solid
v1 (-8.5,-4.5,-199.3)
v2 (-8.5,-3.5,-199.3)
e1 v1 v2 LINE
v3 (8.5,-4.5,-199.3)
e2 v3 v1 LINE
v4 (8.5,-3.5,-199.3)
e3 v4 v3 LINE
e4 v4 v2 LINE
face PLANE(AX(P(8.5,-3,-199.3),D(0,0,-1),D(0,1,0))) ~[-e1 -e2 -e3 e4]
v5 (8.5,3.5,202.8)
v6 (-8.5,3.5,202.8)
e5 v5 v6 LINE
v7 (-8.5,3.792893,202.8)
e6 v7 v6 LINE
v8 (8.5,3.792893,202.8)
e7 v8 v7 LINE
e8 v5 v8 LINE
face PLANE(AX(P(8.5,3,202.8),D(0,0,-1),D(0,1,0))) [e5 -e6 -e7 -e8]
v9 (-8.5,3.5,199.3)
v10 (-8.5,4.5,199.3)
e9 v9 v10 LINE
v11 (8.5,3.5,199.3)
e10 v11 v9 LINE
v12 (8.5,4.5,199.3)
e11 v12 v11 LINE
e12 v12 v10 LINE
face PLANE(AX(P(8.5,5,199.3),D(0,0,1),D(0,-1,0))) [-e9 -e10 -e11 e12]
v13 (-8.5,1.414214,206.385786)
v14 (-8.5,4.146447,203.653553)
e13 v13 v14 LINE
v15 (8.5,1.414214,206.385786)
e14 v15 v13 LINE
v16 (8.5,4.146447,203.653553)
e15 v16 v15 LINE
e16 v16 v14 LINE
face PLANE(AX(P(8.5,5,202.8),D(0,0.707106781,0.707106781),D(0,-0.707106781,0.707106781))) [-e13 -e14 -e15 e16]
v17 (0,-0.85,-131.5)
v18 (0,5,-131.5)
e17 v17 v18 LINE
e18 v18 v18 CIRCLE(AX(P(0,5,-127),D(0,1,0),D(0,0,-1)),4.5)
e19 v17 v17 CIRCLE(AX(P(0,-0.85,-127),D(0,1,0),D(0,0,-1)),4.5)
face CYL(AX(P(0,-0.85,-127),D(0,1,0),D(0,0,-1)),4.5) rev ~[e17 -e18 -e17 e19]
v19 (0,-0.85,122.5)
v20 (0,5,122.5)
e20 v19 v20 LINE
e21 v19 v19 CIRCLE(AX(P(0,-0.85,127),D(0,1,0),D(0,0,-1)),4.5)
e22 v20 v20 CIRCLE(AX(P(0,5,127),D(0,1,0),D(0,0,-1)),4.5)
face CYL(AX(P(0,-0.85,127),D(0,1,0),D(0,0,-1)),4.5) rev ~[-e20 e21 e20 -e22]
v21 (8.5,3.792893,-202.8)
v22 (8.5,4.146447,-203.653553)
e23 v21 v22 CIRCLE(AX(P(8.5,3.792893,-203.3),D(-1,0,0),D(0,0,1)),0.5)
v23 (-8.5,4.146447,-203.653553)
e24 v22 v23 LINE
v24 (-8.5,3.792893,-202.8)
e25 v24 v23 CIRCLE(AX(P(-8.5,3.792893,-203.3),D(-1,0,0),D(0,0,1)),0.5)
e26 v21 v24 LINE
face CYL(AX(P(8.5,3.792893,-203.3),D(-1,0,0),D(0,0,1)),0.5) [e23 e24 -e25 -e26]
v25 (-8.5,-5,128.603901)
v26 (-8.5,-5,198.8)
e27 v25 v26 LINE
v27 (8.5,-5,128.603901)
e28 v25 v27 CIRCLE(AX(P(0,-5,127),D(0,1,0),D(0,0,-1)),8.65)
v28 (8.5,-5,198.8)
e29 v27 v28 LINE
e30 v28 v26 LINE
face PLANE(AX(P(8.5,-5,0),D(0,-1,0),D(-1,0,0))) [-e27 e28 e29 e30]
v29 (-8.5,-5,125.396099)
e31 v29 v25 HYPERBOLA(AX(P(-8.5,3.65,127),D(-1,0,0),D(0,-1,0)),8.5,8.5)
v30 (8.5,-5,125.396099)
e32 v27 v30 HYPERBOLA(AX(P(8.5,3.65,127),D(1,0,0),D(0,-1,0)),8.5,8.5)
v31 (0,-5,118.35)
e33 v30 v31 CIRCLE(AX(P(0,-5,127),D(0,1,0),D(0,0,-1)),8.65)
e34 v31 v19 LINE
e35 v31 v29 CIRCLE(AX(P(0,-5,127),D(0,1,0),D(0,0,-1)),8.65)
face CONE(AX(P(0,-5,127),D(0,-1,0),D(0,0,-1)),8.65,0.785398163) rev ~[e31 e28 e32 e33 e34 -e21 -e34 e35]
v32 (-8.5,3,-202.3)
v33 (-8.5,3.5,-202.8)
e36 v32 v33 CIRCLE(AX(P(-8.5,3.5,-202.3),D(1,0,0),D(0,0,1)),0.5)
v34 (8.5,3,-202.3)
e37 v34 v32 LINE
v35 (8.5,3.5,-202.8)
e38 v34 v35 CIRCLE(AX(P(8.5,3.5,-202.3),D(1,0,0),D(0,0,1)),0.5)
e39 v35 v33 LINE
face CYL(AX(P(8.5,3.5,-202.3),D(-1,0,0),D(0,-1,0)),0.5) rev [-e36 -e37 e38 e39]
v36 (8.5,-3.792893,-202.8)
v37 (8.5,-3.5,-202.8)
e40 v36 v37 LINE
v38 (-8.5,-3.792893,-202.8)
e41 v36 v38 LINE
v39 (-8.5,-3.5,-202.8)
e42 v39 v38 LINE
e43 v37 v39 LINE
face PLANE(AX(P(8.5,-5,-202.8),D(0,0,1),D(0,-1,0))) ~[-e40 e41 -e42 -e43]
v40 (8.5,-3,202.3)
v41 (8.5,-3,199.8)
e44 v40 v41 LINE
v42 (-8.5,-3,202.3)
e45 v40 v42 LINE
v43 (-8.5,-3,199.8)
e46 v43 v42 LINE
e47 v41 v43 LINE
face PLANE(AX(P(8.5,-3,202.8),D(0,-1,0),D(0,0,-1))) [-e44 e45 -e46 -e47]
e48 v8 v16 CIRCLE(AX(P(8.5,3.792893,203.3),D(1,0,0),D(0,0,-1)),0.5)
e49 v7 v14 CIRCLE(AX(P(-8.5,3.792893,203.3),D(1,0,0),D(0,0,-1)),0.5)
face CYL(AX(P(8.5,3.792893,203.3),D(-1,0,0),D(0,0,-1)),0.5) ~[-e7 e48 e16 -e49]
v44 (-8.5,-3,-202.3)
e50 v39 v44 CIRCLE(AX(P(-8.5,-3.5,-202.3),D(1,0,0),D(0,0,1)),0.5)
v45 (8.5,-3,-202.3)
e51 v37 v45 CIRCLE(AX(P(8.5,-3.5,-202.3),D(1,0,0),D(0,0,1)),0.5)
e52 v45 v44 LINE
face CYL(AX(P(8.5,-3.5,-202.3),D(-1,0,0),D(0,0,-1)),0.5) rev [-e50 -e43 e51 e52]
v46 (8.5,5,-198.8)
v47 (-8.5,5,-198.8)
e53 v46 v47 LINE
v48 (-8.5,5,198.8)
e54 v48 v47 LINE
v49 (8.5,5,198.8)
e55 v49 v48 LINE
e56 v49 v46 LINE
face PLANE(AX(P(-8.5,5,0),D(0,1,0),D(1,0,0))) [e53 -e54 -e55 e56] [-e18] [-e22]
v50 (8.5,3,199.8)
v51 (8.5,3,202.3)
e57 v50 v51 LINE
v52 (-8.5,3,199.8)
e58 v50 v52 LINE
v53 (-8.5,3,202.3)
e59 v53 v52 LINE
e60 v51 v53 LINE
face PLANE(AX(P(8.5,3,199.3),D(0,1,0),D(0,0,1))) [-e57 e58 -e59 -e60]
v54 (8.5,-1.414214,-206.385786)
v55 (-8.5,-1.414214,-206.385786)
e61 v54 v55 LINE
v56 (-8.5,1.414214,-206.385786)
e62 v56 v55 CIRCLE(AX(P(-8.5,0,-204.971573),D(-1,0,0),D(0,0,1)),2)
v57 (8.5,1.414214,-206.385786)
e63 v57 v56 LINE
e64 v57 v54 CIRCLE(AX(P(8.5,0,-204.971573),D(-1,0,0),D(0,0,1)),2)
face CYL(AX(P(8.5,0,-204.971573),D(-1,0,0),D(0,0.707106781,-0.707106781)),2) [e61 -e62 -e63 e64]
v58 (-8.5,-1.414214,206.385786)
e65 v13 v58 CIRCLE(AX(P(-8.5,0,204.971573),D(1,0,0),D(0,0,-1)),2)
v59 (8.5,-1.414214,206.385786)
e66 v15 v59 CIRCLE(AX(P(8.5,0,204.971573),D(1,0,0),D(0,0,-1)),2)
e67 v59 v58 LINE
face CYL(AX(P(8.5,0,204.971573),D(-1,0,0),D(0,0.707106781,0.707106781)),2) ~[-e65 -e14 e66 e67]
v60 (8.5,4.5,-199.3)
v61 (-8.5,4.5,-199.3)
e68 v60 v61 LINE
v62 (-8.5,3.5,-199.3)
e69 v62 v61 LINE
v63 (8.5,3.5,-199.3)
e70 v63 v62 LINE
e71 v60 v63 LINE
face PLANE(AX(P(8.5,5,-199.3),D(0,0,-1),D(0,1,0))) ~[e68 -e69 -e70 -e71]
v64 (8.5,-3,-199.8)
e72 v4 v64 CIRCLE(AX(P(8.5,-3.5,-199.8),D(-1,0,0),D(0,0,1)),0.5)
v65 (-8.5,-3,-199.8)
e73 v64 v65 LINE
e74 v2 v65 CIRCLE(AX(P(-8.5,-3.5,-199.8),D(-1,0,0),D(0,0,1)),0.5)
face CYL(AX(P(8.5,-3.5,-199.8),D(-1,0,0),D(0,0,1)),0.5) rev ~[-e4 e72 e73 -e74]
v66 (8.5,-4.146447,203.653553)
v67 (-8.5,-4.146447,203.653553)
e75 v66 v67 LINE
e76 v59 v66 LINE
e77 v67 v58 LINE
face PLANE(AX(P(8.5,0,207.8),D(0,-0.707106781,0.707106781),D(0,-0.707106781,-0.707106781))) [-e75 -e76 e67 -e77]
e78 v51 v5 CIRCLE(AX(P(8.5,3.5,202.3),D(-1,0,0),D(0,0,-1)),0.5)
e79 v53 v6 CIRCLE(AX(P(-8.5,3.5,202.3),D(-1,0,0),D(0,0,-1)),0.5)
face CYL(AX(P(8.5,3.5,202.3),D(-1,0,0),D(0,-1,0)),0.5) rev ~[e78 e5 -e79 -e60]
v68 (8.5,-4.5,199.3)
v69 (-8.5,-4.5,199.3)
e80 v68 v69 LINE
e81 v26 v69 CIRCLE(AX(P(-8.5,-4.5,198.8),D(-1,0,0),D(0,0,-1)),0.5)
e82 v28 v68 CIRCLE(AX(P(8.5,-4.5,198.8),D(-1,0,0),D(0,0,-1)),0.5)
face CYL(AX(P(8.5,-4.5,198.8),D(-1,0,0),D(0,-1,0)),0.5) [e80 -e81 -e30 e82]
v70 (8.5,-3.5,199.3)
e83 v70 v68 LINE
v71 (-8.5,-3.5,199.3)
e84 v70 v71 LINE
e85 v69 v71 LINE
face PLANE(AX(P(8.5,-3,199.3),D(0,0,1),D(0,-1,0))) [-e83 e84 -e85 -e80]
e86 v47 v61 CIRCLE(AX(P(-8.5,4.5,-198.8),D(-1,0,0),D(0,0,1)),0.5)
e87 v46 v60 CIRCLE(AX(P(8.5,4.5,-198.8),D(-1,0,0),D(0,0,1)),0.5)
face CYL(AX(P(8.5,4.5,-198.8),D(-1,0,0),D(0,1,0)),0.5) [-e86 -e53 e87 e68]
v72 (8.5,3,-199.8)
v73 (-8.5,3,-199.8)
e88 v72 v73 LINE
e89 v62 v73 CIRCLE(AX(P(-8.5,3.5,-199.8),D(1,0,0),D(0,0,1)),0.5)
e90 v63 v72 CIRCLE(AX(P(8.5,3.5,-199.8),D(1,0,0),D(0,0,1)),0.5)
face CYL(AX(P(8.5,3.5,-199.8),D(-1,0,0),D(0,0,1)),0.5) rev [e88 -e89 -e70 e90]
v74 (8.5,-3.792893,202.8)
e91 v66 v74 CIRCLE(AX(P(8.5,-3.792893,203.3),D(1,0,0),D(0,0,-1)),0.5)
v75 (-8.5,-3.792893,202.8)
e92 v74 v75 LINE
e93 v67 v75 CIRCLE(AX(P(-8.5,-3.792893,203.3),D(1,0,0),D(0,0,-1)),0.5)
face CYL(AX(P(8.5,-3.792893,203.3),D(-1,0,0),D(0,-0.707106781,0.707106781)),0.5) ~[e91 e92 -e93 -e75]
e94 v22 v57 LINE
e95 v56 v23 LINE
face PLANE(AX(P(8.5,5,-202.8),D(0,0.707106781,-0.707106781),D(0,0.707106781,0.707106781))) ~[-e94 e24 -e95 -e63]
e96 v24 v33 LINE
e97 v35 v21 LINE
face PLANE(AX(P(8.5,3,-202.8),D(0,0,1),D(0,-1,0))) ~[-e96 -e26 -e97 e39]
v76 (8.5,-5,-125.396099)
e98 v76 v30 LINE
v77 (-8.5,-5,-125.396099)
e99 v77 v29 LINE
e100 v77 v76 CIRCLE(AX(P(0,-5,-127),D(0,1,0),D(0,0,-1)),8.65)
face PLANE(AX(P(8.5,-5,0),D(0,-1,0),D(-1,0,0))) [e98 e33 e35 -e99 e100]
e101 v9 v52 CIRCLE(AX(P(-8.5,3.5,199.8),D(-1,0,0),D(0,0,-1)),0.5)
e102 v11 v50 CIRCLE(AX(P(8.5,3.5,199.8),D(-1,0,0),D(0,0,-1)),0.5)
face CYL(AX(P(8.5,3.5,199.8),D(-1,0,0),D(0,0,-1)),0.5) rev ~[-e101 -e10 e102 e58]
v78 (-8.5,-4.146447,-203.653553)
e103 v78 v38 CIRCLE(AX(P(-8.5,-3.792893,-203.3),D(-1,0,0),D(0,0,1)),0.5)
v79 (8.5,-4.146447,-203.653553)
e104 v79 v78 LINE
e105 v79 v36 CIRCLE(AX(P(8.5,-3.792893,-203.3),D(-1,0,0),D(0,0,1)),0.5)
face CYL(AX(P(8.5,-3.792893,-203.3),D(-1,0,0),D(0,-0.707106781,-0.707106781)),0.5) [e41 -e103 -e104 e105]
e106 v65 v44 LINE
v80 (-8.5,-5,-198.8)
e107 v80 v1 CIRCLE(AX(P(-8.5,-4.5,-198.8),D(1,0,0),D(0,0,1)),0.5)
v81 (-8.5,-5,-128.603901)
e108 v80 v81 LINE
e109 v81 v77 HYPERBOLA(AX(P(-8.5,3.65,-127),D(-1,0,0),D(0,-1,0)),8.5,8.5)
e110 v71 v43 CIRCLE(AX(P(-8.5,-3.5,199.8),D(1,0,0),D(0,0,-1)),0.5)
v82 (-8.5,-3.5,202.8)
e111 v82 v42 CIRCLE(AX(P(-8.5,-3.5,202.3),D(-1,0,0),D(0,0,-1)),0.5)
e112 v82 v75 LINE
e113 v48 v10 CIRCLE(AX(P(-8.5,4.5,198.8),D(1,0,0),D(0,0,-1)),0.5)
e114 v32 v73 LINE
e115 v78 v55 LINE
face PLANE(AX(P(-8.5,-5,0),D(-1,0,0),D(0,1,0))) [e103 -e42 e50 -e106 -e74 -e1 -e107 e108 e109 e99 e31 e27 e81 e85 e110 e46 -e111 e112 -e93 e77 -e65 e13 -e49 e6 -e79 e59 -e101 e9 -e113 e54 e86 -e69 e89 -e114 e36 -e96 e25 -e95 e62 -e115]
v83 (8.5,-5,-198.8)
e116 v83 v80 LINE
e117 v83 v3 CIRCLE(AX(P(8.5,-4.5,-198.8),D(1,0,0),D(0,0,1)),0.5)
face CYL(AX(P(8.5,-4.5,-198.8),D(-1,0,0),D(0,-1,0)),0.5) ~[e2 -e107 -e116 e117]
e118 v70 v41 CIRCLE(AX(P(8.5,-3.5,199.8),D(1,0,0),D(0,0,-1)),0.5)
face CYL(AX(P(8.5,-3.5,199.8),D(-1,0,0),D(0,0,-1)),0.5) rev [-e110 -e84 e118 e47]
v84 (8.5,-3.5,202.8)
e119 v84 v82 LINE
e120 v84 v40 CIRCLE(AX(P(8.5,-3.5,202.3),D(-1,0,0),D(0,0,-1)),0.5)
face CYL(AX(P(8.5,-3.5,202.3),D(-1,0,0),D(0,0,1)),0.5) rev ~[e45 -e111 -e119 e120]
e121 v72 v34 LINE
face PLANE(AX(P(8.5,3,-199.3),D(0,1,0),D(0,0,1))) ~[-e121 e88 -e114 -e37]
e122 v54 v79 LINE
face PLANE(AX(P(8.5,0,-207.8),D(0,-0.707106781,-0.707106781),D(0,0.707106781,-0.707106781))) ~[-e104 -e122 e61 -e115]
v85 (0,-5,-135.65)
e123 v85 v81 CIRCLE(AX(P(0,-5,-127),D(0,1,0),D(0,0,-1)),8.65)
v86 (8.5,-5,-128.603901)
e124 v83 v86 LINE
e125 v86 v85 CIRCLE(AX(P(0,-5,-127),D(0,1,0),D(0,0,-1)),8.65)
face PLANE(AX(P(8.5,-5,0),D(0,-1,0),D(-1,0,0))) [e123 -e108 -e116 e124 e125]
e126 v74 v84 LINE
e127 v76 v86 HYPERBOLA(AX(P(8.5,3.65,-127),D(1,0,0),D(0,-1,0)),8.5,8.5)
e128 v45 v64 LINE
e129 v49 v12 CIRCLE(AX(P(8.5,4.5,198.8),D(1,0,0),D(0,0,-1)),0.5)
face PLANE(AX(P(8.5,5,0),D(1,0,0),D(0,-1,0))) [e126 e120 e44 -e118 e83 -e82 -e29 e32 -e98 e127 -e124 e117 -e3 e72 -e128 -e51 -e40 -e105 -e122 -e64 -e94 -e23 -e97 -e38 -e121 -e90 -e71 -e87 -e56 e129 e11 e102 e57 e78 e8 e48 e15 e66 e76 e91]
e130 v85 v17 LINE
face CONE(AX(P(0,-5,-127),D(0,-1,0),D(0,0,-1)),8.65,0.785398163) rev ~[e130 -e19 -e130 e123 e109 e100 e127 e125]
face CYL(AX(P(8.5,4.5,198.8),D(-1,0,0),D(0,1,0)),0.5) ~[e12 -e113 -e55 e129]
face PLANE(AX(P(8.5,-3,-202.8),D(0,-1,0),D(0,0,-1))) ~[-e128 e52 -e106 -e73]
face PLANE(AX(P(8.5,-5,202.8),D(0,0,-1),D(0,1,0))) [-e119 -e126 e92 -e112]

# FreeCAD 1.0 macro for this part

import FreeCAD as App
import Part
import Sketcher

V = App.Vector
Q = App.Units.Quantity


def edges_at(feature, points):
    """Names of the edges that pass closest to the given points."""
    edges = feature.Shape.Edges
    near = lambda p: min(range(len(edges)), key=lambda i: edges[i].distToShape(Part.Vertex(*p))[0])
    return sorted({f"Edge{near(p) + 1}" for p in points})

doc = App.newDocument("Part")
body = doc.addObject("PartDesign::Body", "Body")

# Sketch on XY plane
sketch1 = body.newObject("Sketcher::SketchObject", "Sketch")
sketch1.AttachmentSupport = (doc.getObject("XY_Plane"), [""])
sketch1.MapMode = "FlatFace"
sketch1.addGeometry([
    Part.LineSegment(V(-8, -5, 0), V(8, -5, 0)),
    Part.LineSegment(V(8, -5, 0), V(8, 5, 0)),
    Part.LineSegment(V(8, 5, 0), V(-8, 5, 0)),
    Part.LineSegment(V(-8, 5, 0), V(-8, -5, 0)),
], False)
sketch1.addConstraint([
    Sketcher.Constraint("Coincident", 0, 2, 1, 1),
    Sketcher.Constraint("Coincident", 1, 2, 2, 1),
    Sketcher.Constraint("Coincident", 2, 2, 3, 1),
    Sketcher.Constraint("Coincident", 3, 2, 0, 1),
    Sketcher.Constraint("Horizontal", 0),
    Sketcher.Constraint("Vertical", 1),
    Sketcher.Constraint("Horizontal", 2),
    Sketcher.Constraint("Vertical", 3),
    Sketcher.Constraint("Symmetric", 0, 2, 2, 2, -1, 1),
    Sketcher.Constraint("DistanceX", 0, 1, 0, 2, Q("17 mm")),
    Sketcher.Constraint("DistanceY", 1, 1, 1, 2, Q("10 mm")),
])
pad1 = body.newObject("PartDesign::Pad", "Pad")
pad1.Profile = sketch1
pad1.Length = 207.8

# Sketch on YZ plane
sketch2 = body.newObject("Sketcher::SketchObject", "Sketch001")
sketch2.AttachmentSupport = (doc.getObject("YZ_Plane"), [""])
sketch2.MapMode = "FlatFace"
sketch2.AttachmentOffset = App.Placement(V(0, 0, 8.5), App.Rotation())
sketch2.addGeometry([
    Part.LineSegment(V(3, 199.3, 0), V(5, 199.3, 0)),  # 0
    Part.LineSegment(V(5, 199.3, 0), V(5, 202.8, 0)),  # 1
    Part.LineSegment(V(5, 202.8, 0), V(3, 202.8, 0)),  # 2
    Part.LineSegment(V(3, 202.8, 0), V(3, 199.3, 0)),  # 3
    Part.LineSegment(V(-3, 202.8, 0), V(-5, 202.8, 0)),  # 4
    Part.LineSegment(V(-5, 202.8, 0), V(-5, 199.3, 0)),  # 5
    Part.LineSegment(V(-5, 199.3, 0), V(-3, 199.3, 0)),  # 6
    Part.LineSegment(V(-3, 199.3, 0), V(-3, 202.8, 0)),  # 7
    Part.LineSegment(V(-5, 202.8, 0), V(0, 207.8, 0)),  # 8
    Part.LineSegment(V(0, 207.8, 0), V(-5, 207.8, 0)),  # 9
    Part.LineSegment(V(-5, 207.8, 0), V(-5, 202.8, 0)),  # 10
    Part.LineSegment(V(0, 207.8, 0), V(5, 202.8, 0)),  # 11
    Part.LineSegment(V(5, 202.8, 0), V(5, 207.8, 0)),  # 12
    Part.LineSegment(V(5, 207.8, 0), V(0, 207.8, 0)),  # 13
], False)
sketch2.addConstraint([
    Sketcher.Constraint("Coincident", 0, 2, 1, 1),
    Sketcher.Constraint("Coincident", 1, 2, 2, 1),
    Sketcher.Constraint("Coincident", 2, 2, 3, 1),
    Sketcher.Constraint("Coincident", 3, 2, 0, 1),
    Sketcher.Constraint("Coincident", 4, 2, 5, 1),
    Sketcher.Constraint("Coincident", 5, 2, 6, 1),
    Sketcher.Constraint("Coincident", 6, 2, 7, 1),
    Sketcher.Constraint("Coincident", 7, 2, 4, 1),
    Sketcher.Constraint("Coincident", 8, 2, 9, 1),
    Sketcher.Constraint("Coincident", 9, 2, 10, 1),
    Sketcher.Constraint("Coincident", 10, 2, 8, 1),
    Sketcher.Constraint("Coincident", 11, 2, 12, 1),
    Sketcher.Constraint("Coincident", 12, 2, 13, 1),
    Sketcher.Constraint("Coincident", 13, 2, 11, 1),
    Sketcher.Constraint("Horizontal", 0),
    Sketcher.Constraint("Vertical", 1),
    Sketcher.Constraint("Horizontal", 2),
    Sketcher.Constraint("Vertical", 3),
    Sketcher.Constraint("Horizontal", 4),
    Sketcher.Constraint("Vertical", 5),
    Sketcher.Constraint("Horizontal", 6),
    Sketcher.Constraint("Vertical", 7),
    Sketcher.Constraint("Horizontal", 9),
    Sketcher.Constraint("Vertical", 10),
    Sketcher.Constraint("Vertical", 12),
    Sketcher.Constraint("Horizontal", 13),
    Sketcher.Constraint("Coincident", 10, 2, 4, 2),
    Sketcher.Constraint("Coincident", 11, 2, 1, 2),
    Sketcher.Constraint("Coincident", 13, 2, 8, 2),
    Sketcher.Constraint("Symmetric", 1, 2, 4, 2, -2),
    Sketcher.Constraint("Symmetric", 3, 2, 6, 2, -2),
    Sketcher.Constraint("PointOnObject", 8, 2, -2),
    Sketcher.Constraint("Perpendicular", 8, 11),
    Sketcher.Constraint("DistanceX", 9, 2, 9, 1, Q("5 mm")),
    Sketcher.Constraint("DistanceY", 1, 1, 1, 2, Q("3.5 mm")),
    Sketcher.Constraint("DistanceX", 6, 2, 3, 2, Q("6 mm")),
    Sketcher.Constraint("DistanceY", -1, 1, 0, 2, Q("199.3 mm")),
])
pocket1 = body.newObject("PartDesign::Pocket", "Pocket")
pocket1.Profile = sketch2
pocket1.Type = "ThroughAll"
doc.recompute()

fillet = body.newObject("PartDesign::Fillet", "Fillet")
fillet.Base = (pocket1, edges_at(pocket1, [
    (0, 5, 199.3),
    (0, 3, 199.3),
    (0, 3, 202.8),
    (0, 5, 202.8),
    (0, -5, 202.8),
    (0, -3, 202.8),
    (0, -3, 199.3),
    (0, -5, 199.3),
]))
fillet.Radius = 0.5
doc.recompute()

fillet2 = body.newObject("PartDesign::Fillet", "Fillet001")
fillet2.Base = (fillet, edges_at(fillet, [(0, 0, 207.8)]))
fillet2.Radius = 2
doc.recompute()

mirrored = body.newObject("PartDesign::Mirrored", "Mirrored")
mirrored.TransformMode = "Transform body"
mirrored.MirrorPlane = (doc.getObject("XY_Plane"), [""])
body.Tip = mirrored

# Sketch on XZ plane
sketch3 = body.newObject("Sketcher::SketchObject", "Sketch002")
sketch3.AttachmentSupport = (doc.getObject("XZ_Plane"), [""])
sketch3.MapMode = "FlatFace"
sketch3.AttachmentOffset = App.Placement(V(0, 0, 5), App.Rotation())
sketch3.addGeometry([
    Part.Circle(V(0, 127, 0), V(0, 0, 1), 4.5),
    Part.Circle(V(0, -127, 0), V(0, 0, 1), 4.5),
], False)
sketch3.addConstraint([
    Sketcher.Constraint("Equal", 0, 1),
    Sketcher.Constraint("Symmetric", 0, 3, 1, 3, -1, 1),
    Sketcher.Constraint("PointOnObject", 0, 3, -2),
    Sketcher.Constraint("Diameter", 0, Q("9 mm")),
    Sketcher.Constraint("DistanceY", -1, 1, 0, 3, Q("127 mm")),
])
doc.recompute()
hole = body.newObject("PartDesign::Hole", "Hole")
hole.Profile = sketch3
hole.ThreadType = "None"
hole.Diameter = 9
hole.DepthType = "ThroughAll"
hole.HoleCutType = "Countersink"
hole.HoleCutDiameter = 17.3
hole.HoleCutCountersinkAngle = 90

doc.recompute()
